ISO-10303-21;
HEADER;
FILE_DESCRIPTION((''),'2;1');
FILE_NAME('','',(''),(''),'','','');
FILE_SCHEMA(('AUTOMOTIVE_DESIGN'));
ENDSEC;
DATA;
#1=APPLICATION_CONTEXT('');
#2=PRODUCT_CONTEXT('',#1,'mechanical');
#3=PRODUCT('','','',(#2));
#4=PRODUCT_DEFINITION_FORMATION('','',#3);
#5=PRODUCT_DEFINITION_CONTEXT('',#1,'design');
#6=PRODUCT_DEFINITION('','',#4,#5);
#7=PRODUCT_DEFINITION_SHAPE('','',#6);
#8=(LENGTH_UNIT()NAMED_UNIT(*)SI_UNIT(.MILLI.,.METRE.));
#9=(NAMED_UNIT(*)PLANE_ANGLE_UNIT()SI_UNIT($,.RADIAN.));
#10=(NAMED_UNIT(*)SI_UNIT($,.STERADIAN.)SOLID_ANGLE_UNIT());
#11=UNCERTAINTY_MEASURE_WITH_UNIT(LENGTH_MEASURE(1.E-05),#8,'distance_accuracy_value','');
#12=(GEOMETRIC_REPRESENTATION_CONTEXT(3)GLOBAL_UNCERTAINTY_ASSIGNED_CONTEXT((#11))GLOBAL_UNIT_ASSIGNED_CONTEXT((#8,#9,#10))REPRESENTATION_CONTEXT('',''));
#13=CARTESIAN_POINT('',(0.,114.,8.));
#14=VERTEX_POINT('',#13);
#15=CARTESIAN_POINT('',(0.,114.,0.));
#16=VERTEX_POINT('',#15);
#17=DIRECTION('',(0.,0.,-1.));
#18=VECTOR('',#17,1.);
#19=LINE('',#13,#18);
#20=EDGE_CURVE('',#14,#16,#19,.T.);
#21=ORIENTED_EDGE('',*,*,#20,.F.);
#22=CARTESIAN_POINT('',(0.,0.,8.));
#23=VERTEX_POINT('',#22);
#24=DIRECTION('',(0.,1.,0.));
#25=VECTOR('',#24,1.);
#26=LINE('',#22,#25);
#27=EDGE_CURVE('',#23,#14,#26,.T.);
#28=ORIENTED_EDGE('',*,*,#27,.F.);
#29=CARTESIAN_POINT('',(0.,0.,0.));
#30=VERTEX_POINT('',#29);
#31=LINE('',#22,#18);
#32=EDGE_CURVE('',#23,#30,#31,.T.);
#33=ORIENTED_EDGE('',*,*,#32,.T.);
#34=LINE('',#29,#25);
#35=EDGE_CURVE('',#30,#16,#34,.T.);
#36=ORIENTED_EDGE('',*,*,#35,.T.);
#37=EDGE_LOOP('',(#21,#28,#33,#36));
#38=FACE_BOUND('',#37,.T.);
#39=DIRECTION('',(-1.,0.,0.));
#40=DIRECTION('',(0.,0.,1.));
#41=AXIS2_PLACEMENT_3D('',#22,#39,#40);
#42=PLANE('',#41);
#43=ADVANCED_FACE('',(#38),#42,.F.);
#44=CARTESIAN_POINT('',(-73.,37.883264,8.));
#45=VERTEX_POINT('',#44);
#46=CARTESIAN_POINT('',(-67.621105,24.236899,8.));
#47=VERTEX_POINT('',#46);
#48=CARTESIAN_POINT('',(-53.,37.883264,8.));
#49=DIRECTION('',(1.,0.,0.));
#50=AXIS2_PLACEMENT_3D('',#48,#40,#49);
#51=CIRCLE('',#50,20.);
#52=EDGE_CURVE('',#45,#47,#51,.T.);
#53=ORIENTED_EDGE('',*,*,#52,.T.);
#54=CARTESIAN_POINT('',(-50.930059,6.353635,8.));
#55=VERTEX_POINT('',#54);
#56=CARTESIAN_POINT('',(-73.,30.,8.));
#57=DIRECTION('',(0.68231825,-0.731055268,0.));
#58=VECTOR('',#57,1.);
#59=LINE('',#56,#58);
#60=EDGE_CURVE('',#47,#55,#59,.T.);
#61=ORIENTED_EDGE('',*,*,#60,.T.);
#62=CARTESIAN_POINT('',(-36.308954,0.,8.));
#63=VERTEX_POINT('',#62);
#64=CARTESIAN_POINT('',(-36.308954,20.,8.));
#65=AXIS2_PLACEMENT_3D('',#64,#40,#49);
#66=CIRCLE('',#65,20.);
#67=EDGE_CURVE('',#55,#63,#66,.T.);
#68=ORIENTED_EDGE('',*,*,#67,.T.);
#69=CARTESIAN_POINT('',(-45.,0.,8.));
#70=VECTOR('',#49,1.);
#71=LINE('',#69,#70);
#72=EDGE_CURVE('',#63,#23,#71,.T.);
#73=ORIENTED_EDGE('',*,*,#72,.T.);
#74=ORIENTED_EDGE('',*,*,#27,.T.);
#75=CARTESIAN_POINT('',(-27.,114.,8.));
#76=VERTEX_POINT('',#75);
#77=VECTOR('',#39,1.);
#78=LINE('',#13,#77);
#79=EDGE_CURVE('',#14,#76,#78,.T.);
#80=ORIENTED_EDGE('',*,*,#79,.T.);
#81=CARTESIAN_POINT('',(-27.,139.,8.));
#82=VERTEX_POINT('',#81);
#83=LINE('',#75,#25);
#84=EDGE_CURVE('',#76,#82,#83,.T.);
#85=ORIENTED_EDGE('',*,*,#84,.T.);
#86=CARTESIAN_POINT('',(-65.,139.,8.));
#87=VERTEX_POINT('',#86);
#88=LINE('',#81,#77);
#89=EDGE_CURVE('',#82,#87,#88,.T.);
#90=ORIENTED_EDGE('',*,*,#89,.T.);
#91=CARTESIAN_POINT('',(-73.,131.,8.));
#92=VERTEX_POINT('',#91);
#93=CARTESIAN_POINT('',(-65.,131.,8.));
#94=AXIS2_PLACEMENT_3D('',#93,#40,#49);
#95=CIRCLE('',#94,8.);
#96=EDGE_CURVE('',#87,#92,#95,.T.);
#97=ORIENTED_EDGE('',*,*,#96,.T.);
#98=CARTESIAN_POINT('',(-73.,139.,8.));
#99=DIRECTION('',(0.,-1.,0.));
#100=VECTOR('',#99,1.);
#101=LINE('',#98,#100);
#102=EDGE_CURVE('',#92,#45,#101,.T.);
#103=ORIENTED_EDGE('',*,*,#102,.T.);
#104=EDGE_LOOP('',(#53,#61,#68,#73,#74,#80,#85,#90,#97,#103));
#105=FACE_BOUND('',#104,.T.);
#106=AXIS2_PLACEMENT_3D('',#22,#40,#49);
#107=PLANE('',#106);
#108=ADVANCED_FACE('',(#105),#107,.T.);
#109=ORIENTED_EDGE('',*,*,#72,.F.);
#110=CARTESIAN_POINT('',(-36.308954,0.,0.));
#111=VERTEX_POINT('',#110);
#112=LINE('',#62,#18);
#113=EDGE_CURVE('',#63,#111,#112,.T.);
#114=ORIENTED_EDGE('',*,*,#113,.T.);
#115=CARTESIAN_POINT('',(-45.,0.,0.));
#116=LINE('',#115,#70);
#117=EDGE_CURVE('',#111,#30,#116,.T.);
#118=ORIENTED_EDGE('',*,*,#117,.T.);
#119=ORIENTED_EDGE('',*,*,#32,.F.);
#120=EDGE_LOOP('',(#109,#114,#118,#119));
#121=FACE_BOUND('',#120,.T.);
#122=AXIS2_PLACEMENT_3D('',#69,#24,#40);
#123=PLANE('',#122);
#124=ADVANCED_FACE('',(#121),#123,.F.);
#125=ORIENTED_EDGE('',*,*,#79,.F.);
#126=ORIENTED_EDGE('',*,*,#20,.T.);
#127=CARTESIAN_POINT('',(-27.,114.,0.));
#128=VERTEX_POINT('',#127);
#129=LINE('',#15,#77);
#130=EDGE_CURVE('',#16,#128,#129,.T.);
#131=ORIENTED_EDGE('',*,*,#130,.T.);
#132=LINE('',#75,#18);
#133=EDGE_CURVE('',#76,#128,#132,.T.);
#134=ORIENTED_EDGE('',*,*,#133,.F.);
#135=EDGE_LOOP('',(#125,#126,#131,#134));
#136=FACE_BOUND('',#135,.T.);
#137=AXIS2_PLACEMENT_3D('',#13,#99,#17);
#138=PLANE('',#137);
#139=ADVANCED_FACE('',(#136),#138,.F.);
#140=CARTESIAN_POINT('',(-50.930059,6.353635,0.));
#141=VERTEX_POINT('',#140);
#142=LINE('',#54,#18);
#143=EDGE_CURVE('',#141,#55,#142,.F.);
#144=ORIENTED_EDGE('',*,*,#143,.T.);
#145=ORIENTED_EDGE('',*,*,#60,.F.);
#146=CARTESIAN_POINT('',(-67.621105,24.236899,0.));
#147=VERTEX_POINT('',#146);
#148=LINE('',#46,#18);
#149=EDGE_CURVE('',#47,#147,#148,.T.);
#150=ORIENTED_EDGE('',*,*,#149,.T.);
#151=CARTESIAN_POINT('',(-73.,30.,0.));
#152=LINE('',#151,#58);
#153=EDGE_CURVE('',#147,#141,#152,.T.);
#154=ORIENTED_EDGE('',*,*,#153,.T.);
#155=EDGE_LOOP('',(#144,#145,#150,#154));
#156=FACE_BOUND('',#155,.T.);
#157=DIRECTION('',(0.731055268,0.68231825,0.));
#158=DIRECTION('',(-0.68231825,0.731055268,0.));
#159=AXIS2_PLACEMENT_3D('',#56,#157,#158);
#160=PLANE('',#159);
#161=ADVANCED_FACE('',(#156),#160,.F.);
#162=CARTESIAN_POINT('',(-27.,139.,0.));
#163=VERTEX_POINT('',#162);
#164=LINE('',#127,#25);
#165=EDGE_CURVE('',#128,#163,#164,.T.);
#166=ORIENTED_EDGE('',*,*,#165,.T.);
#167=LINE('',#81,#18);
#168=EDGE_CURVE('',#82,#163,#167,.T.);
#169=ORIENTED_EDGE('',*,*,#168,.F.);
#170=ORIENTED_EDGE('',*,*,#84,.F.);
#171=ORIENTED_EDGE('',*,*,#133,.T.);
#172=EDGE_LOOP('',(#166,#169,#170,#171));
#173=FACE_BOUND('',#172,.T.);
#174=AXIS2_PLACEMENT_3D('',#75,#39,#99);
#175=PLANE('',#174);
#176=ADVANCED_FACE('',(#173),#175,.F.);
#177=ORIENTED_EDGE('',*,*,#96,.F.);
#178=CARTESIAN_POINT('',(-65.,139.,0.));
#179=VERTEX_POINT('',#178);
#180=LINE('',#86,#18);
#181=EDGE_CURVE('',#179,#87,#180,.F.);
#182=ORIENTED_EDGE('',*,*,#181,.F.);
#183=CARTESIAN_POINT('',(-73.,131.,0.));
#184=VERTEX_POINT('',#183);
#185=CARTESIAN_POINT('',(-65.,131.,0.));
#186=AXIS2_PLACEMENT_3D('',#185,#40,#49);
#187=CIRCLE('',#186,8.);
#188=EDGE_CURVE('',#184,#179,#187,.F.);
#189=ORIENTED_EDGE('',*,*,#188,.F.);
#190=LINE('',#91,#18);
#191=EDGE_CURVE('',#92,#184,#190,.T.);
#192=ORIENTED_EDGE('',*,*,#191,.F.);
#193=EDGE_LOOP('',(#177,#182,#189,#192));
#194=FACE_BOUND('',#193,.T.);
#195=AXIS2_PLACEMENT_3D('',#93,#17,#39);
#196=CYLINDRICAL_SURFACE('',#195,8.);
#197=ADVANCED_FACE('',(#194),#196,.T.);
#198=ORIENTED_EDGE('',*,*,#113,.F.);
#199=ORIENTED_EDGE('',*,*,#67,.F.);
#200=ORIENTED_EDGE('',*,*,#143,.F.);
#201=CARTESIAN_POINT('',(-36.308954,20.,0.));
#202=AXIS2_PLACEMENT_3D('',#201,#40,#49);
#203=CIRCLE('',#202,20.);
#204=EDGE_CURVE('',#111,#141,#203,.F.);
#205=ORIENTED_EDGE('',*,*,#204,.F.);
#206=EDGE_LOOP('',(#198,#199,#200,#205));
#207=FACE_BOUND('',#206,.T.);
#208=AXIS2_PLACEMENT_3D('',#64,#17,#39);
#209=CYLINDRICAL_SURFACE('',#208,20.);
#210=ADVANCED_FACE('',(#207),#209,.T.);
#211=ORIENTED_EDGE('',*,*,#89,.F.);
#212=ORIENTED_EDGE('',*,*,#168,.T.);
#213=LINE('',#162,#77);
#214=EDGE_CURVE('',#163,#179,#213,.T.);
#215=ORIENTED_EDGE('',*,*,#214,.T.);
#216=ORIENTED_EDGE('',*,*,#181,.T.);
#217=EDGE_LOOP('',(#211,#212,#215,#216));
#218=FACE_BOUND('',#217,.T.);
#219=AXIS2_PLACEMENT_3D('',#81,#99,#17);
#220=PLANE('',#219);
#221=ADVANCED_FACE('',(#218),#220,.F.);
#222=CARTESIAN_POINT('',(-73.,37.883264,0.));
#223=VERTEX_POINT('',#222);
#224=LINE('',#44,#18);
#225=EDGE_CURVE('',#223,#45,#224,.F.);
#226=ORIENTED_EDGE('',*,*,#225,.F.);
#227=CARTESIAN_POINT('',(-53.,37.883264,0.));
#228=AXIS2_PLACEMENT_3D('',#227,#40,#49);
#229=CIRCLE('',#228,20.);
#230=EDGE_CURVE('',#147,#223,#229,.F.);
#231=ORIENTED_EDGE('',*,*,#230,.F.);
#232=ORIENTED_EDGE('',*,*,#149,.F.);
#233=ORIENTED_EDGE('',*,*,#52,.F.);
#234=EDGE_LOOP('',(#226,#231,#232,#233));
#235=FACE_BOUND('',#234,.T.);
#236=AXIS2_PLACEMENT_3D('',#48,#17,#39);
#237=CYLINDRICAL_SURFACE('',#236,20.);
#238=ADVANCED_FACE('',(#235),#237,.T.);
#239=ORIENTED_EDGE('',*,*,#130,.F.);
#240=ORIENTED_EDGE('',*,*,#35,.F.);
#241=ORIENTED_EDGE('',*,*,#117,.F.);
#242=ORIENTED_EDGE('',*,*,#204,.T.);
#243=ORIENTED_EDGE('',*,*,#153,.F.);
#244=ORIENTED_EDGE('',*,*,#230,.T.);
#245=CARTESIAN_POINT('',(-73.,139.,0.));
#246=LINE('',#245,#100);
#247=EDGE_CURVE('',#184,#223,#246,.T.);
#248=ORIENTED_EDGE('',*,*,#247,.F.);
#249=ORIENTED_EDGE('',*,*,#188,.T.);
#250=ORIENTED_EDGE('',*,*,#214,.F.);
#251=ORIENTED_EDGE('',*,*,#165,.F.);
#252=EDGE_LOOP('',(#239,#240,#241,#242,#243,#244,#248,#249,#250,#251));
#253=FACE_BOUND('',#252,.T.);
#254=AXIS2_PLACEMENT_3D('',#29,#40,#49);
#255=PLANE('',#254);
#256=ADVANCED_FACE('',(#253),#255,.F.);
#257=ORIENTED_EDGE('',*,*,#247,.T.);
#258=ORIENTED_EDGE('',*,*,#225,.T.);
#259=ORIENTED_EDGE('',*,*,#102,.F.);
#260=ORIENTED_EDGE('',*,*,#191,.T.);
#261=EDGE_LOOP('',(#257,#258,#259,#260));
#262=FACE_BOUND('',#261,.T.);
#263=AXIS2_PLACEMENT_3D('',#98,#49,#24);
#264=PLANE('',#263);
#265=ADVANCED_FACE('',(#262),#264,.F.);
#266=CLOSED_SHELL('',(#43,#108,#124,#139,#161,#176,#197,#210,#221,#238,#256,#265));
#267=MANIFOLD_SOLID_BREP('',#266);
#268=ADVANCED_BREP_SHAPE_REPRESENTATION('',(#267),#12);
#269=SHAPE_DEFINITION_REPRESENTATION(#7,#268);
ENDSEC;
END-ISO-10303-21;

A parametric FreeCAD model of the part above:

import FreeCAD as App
import Part
import Sketcher

V = App.Vector
Q = App.Units.Quantity


def edges_at(feature, points):
    """Names of the edges that pass closest to the given points."""
    edges = feature.Shape.Edges
    near = lambda p: min(range(len(edges)), key=lambda i: edges[i].distToShape(Part.Vertex(*p))[0])
    return sorted({f"Edge{near(p) + 1}" for p in points})


def add_polygon(sketch, points):
    """Adds a closed chain of lines whose ends are joined by coincident constraints."""
    first, n = sketch.GeometryCount, len(points)
    for a, b in zip(points, points[1:] + points[:1]):
        sketch.addGeometry(Part.LineSegment(App.Vector(*a, 0), App.Vector(*b, 0)), False)
    for i in range(n):
        sketch.addConstraint(Sketcher.Constraint("Coincident", first + i, 2, first + (i + 1) % n, 1))

doc = App.newDocument("Part")
body = doc.addObject("PartDesign::Body", "Body")

# Sketch on XY plane
sketch1 = body.newObject("Sketcher::SketchObject", "Sketch")
sketch1.AttachmentSupport = (doc.getObject("XY_Plane"), [""])
sketch1.MapMode = "FlatFace"
add_polygon(sketch1, [(0, 0), (0, 114), (-27, 114), (-27, 139), (-73, 139), (-73, 30), (-45, 0)])  # lines 0-6
sketch1.addConstraint([
    Sketcher.Constraint("Vertical", 0),
    Sketcher.Constraint("Horizontal", 1),
    Sketcher.Constraint("Vertical", 2),
    Sketcher.Constraint("Horizontal", 3),
    Sketcher.Constraint("Vertical", 4),
    Sketcher.Constraint("Horizontal", 6),
    Sketcher.Constraint("Coincident", 6, 2, -1, 1),
    Sketcher.Constraint("DistanceX", 1, 2, 1, 1, Q("27 mm")),
    Sketcher.Constraint("DistanceX", 3, 2, 3, 1, Q("46 mm")),
    Sketcher.Constraint("DistanceX", 6, 1, 6, 2, Q("45 mm")),
    Sketcher.Constraint("DistanceY", 0, 1, 0, 2, Q("114 mm")),
    Sketcher.Constraint("DistanceY", 2, 1, 2, 2, Q("25 mm")),
    Sketcher.Constraint("DistanceY", 4, 2, 4, 1, Q("109 mm")),
])
pad1 = body.newObject("PartDesign::Pad", "Pad")
pad1.Profile = sketch1
pad1.Length = 8
doc.recompute()

fillet = body.newObject("PartDesign::Fillet", "Fillet")
fillet.Base = (pad1, edges_at(pad1, [(-73, 139, 4)]))
fillet.Radius = 8
doc.recompute()

fillet2 = body.newObject("PartDesign::Fillet", "Fillet001")
fillet2.Base = (fillet, edges_at(fillet, [(-45, 0, 4), (-73, 30, 4)]))
fillet2.Radius = 20

doc.recompute()
